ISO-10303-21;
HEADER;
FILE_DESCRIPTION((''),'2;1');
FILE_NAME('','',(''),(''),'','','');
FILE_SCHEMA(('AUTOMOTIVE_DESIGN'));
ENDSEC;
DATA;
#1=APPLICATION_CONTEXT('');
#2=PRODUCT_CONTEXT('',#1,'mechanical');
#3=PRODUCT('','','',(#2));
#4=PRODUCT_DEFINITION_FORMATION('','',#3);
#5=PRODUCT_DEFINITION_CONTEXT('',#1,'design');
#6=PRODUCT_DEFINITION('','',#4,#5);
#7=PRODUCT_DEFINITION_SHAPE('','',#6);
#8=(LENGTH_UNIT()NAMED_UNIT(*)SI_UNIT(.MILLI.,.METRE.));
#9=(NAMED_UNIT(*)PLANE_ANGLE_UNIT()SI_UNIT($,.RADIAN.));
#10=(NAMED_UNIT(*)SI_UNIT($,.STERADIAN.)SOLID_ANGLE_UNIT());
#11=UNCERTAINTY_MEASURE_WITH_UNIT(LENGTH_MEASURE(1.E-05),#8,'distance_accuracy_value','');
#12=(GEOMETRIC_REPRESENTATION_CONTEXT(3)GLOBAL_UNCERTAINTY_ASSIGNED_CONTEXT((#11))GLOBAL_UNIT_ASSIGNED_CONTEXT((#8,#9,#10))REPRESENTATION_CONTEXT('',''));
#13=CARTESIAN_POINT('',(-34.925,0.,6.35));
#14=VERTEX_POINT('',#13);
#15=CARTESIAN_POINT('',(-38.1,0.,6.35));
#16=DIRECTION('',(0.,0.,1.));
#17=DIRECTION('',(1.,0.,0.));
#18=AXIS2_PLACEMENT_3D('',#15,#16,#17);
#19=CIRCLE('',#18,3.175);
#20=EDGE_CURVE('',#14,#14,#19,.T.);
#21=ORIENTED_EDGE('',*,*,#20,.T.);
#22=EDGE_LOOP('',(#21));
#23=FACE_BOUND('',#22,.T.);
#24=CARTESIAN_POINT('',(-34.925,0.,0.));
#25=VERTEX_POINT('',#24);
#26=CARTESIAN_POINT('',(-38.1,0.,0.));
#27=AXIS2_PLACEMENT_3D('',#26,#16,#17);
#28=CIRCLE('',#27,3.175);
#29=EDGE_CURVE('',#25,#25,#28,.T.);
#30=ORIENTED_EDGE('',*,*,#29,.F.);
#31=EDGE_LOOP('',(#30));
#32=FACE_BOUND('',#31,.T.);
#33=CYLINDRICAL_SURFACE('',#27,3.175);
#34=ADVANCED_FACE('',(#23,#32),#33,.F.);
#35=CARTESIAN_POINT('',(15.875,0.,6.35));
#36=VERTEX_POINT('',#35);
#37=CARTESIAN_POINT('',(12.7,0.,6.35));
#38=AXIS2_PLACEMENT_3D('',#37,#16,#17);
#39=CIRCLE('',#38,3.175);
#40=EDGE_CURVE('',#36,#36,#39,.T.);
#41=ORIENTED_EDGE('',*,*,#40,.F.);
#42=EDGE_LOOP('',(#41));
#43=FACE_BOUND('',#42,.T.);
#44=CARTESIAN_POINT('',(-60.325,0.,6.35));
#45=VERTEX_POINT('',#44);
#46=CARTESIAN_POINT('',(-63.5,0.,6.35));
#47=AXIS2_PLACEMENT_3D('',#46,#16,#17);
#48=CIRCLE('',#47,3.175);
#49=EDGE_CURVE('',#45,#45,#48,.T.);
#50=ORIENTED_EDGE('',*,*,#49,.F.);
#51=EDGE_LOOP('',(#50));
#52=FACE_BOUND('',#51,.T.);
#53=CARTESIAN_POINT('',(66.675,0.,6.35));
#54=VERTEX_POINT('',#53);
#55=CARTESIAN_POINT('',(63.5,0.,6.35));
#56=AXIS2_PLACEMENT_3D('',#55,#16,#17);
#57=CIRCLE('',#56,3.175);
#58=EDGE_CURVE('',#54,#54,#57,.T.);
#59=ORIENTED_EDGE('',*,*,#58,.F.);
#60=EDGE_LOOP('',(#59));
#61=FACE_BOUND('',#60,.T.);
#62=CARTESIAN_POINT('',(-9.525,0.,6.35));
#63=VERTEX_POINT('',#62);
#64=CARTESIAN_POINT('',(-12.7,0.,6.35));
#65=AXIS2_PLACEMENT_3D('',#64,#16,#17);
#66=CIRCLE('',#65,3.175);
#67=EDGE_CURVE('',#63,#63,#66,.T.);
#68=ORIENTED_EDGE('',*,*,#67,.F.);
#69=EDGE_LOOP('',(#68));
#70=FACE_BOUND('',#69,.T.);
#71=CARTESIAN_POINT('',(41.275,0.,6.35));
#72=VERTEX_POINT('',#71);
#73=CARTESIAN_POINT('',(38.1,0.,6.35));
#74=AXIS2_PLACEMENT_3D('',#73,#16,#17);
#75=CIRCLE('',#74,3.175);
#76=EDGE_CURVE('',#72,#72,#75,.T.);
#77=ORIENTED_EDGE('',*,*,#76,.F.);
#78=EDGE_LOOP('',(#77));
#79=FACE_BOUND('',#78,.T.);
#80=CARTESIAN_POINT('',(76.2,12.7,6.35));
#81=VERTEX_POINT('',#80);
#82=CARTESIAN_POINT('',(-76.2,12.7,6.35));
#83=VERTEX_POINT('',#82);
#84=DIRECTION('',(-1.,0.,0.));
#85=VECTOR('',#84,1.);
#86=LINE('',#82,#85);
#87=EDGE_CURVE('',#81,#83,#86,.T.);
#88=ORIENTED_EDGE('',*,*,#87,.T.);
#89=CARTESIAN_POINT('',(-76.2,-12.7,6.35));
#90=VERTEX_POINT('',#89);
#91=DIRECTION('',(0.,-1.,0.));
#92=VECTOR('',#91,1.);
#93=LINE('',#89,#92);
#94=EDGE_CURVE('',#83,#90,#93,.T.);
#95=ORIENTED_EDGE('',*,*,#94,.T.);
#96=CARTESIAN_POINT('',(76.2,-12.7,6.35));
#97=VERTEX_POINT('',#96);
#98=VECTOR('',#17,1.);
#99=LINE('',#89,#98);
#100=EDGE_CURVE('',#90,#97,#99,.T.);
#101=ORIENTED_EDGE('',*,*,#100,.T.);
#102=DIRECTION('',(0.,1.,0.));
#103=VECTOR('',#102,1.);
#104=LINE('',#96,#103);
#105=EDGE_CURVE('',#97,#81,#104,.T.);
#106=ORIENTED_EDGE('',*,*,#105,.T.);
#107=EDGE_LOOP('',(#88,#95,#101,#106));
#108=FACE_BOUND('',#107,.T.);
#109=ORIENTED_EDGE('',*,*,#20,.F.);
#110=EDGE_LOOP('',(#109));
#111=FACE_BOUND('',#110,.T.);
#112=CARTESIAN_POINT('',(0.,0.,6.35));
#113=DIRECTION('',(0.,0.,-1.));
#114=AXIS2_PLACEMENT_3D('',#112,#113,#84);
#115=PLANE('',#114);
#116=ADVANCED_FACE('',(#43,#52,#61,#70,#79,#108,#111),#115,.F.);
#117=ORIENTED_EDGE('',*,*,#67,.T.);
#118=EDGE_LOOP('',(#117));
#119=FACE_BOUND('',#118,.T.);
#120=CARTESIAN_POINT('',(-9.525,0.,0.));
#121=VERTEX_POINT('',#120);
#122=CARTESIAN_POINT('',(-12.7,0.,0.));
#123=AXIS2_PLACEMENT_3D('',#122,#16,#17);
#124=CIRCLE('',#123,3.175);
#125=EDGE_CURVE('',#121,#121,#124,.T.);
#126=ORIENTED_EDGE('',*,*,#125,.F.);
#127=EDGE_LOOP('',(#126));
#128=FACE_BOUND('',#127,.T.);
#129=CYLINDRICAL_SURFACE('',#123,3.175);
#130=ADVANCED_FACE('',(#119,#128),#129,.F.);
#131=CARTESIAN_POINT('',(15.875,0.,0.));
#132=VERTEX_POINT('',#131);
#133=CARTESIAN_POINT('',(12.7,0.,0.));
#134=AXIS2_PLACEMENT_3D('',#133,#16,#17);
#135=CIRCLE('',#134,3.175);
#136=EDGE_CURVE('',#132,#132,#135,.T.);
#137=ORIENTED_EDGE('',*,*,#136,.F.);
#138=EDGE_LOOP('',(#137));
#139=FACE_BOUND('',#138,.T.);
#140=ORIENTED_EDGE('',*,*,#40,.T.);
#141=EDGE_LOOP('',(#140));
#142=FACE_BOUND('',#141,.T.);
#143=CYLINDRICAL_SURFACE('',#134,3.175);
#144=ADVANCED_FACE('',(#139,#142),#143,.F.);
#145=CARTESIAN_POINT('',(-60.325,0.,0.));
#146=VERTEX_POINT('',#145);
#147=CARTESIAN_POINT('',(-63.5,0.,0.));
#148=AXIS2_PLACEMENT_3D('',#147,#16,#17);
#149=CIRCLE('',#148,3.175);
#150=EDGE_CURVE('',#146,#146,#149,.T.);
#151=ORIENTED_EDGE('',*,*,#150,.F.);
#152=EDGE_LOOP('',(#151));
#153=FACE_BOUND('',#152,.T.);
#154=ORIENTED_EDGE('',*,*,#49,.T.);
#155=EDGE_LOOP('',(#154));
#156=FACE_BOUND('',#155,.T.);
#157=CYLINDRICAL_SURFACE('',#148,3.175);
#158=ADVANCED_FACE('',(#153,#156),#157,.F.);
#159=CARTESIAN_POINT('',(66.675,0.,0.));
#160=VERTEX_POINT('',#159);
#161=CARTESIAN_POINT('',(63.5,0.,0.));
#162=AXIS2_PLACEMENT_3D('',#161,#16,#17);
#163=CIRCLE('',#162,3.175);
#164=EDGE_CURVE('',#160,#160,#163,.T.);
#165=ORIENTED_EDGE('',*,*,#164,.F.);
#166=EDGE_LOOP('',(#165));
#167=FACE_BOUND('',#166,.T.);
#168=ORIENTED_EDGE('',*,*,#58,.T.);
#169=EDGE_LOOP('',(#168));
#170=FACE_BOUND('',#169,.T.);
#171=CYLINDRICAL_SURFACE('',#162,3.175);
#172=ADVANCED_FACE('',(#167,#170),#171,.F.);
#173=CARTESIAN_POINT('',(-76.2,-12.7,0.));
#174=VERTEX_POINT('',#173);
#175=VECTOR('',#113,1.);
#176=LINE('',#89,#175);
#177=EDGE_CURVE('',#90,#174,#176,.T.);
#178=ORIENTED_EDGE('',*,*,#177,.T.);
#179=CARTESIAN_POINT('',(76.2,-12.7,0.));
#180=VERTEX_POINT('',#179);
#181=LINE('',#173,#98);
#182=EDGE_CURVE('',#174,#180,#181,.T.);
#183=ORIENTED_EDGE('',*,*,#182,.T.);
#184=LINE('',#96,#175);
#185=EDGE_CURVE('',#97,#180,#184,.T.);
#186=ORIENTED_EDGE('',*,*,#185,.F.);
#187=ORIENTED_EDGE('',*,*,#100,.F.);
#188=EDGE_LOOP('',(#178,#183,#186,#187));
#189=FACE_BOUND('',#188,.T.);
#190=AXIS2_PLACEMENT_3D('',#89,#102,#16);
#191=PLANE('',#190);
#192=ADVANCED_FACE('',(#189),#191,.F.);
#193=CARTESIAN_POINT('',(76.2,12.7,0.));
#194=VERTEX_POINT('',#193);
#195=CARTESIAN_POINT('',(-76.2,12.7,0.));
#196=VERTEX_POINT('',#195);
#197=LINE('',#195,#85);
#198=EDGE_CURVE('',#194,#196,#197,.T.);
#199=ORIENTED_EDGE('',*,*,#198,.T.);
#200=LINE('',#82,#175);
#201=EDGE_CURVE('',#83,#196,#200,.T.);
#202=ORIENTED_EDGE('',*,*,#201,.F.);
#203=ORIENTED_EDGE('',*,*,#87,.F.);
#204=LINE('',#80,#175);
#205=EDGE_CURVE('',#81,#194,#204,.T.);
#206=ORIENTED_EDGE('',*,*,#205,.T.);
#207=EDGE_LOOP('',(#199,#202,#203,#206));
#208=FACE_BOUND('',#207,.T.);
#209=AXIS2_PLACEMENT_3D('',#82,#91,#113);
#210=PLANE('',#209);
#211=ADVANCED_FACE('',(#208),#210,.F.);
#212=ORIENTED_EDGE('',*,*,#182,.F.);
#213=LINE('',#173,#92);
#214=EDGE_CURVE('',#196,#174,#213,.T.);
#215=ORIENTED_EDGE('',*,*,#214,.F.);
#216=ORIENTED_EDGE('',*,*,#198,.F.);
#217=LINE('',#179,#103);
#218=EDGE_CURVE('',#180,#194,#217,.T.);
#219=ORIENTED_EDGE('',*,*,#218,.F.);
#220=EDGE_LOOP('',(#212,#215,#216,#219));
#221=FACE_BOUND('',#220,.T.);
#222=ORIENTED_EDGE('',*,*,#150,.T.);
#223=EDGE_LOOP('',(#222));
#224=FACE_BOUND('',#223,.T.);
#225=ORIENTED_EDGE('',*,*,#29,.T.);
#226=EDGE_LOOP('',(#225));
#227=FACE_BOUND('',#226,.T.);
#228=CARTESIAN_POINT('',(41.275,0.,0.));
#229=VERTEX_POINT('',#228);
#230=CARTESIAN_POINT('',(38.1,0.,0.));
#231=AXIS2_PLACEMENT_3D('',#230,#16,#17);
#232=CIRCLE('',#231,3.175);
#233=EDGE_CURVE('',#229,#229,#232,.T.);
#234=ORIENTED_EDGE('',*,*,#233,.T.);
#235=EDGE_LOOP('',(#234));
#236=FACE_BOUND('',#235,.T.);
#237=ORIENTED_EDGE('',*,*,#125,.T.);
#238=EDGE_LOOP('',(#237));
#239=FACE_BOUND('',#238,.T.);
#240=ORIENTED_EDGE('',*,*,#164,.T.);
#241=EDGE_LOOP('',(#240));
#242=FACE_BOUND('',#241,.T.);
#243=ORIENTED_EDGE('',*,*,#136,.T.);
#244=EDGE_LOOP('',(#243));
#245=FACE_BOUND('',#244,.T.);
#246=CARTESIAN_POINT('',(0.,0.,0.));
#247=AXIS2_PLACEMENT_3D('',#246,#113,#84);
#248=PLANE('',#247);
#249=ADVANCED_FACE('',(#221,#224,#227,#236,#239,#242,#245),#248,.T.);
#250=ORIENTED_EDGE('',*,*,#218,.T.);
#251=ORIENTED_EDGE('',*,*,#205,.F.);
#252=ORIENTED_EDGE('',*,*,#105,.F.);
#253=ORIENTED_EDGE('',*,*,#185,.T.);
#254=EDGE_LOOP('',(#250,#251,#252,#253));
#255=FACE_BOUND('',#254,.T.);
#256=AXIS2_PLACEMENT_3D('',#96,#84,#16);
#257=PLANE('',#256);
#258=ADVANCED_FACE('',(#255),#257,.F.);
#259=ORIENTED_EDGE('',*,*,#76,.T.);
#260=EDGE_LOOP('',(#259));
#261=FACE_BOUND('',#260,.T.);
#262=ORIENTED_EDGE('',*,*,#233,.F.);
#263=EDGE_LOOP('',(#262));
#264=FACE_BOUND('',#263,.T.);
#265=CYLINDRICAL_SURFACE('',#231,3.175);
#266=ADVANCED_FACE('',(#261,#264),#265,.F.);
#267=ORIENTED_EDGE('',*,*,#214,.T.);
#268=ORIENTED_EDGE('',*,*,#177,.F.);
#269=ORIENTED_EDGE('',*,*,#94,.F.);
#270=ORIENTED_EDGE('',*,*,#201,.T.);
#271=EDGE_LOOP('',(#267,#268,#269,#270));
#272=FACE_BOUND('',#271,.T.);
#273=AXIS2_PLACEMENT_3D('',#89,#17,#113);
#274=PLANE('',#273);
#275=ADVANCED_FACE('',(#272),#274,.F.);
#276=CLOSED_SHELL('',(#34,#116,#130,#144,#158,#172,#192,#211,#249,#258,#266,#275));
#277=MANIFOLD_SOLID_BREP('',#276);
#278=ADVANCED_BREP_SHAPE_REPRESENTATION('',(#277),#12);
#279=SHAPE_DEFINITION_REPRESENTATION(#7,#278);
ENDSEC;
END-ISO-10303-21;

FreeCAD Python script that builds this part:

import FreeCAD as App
import Part
import Sketcher
Q = App.Units.Quantity

doc = App.newDocument("Part")
body = doc.addObject("PartDesign::Body", "Body")

# Sketch on XY plane
sketch1 = body.newObject("Sketcher::SketchObject", "Sketch")
sketch1.AttachmentSupport = (doc.getObject("XY_Plane"), [""])
sketch1.MapMode = "FlatFace"
sketch1.addGeometry([
    Part.LineSegment(App.Vector(-76.2, 12.7, 0), App.Vector(-76.2, -12.7, 0)),
    Part.LineSegment(App.Vector(-76.2, -12.7, 0), App.Vector(76.2, -12.7, 0)),
    Part.LineSegment(App.Vector(76.2, -12.7, 0), App.Vector(76.2, 12.7, 0)),
    Part.LineSegment(App.Vector(76.2, 12.7, 0), App.Vector(-76.2, 12.7, 0)),
], False)
sketch1.addConstraint([
    Sketcher.Constraint("Coincident", 0, 2, 1, 1),
    Sketcher.Constraint("Coincident", 1, 2, 2, 1),
    Sketcher.Constraint("Coincident", 2, 2, 3, 1),
    Sketcher.Constraint("Coincident", 3, 2, 0, 1),
    Sketcher.Constraint("Vertical", 0),
    Sketcher.Constraint("Horizontal", 1),
    Sketcher.Constraint("Vertical", 2),
    Sketcher.Constraint("Horizontal", 3),
    Sketcher.Constraint("Symmetric", 0, 2, 2, 2, -1, 1),
    Sketcher.Constraint("DistanceX", 1, 1, 1, 2, Q("6 in")),
    Sketcher.Constraint("DistanceY", 0, 2, 0, 1, Q("1 in")),
])
pad1 = body.newObject("PartDesign::Pad", "Pad")
pad1.Profile = sketch1
pad1.Length = Q("0.25 in")

# Sketch on XY plane
sketch2 = body.newObject("Sketcher::SketchObject", "Sketch001")
sketch2.AttachmentSupport = (doc.getObject("XY_Plane"), [""])
sketch2.MapMode = "FlatFace"
sketch2.AttachmentOffset = App.Placement(App.Vector(0, 0, 0.25 * 25.4), App.Rotation())
sketch2.addGeometry([
    Part.Circle(App.Vector(-12.7, 0, 0), App.Vector(0, 0, 1), 3.175),  # 0
    Part.Circle(App.Vector(38.1, 0, 0), App.Vector(0, 0, 1), 3.175),  # 1
    Part.Circle(App.Vector(63.5, 0, 0), App.Vector(0, 0, 1), 3.175),  # 2
    Part.Circle(App.Vector(12.7, 0, 0), App.Vector(0, 0, 1), 3.175),  # 3
    Part.Circle(App.Vector(-38.1, 0, 0), App.Vector(0, 0, 1), 3.175),  # 4
    Part.Circle(App.Vector(-63.5, 0, 0), App.Vector(0, 0, 1), 3.175),  # 5
], False)
sketch2.addConstraint([
    Sketcher.Constraint("Equal", 0, 1),
    Sketcher.Constraint("Equal", 1, 2),
    Sketcher.Constraint("Equal", 2, 3),
    Sketcher.Constraint("Equal", 3, 4),
    Sketcher.Constraint("Equal", 4, 5),
    Sketcher.Constraint("Symmetric", 0, 3, 3, 3, -1, 1),
    Sketcher.Constraint("Symmetric", 1, 3, 4, 3, -1, 1),
    Sketcher.Constraint("Symmetric", 2, 3, 5, 3, -1, 1),
    Sketcher.Constraint("PointOnObject", 0, 3, -1),
    Sketcher.Constraint("PointOnObject", 1, 3, -1),
    Sketcher.Constraint("PointOnObject", 2, 3, -1),
    Sketcher.Constraint("Diameter", 0, Q("0.25 in")),
    Sketcher.Constraint("DistanceX", 0, 3, 1, 3, Q("2 in")),
    Sketcher.Constraint("DistanceX", 1, 3, 2, 3, Q("1 in")),
    Sketcher.Constraint("DistanceX", 0, 3, 3, 3, Q("1 in")),
])
pocket1 = body.newObject("PartDesign::Pocket", "Pocket")
pocket1.Profile = sketch2
pocket1.Length = Q("0.25 in")

doc.recompute()
